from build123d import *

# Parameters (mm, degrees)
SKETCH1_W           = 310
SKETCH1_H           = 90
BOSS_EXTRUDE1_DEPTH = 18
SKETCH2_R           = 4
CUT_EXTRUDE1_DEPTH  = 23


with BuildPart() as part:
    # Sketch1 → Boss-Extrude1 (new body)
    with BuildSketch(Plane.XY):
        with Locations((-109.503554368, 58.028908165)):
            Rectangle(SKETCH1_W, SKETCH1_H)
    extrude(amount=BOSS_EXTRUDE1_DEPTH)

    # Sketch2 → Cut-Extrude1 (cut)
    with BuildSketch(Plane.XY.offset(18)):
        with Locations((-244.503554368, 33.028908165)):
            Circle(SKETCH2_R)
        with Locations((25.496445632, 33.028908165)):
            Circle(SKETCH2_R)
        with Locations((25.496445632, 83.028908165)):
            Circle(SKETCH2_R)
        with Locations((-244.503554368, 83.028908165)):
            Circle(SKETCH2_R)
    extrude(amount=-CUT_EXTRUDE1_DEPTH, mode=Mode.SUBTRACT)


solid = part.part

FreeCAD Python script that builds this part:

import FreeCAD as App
import Part
import Sketcher


def add_polygon(sketch, points):
    """Adds a closed chain of lines whose ends are joined by coincident constraints."""
    first, n = sketch.GeometryCount, len(points)
    for a, b in zip(points, points[1:] + points[:1]):
        sketch.addGeometry(Part.LineSegment(App.Vector(*a, 0), App.Vector(*b, 0)), False)
    for i in range(n):
        sketch.addConstraint(Sketcher.Constraint("Coincident", first + i, 2, first + (i + 1) % n, 1))

doc = App.newDocument("Part")
body = doc.addObject("PartDesign::Body", "Body")

sketch1 = body.newObject("Sketcher::SketchObject", "Sketch")
sketch1.AttachmentSupport = (doc.getObject("XY_Plane"), [""])
sketch1.MapMode = "FlatFace"
add_polygon(sketch1, [(-265, 103), (-265, 13), (45, 13), (45, 103)])
sketch1.addConstraint(Sketcher.Constraint("Vertical", 0))
sketch1.addConstraint(Sketcher.Constraint("Horizontal", 1))
sketch1.addConstraint(Sketcher.Constraint("Vertical", 2))
sketch1.addConstraint(Sketcher.Constraint("Horizontal", 3))
sketch1.addConstraint(Sketcher.Constraint("DistanceX", 1, 1, 1, 2, 310.0))
sketch1.addConstraint(Sketcher.Constraint("DistanceY", 0, 2, 0, 1, 90.0))
sketch1.addConstraint(Sketcher.Constraint("DistanceY", -1, 1, 0, 2, 13.028908))
sketch1.addConstraint(Sketcher.Constraint("DistanceX", 0, 2, -1, 1, 264.503554))
pad1 = body.newObject("PartDesign::Pad", "Pad")
pad1.Profile = sketch1
pad1.Length = 18

sketch2 = body.newObject("Sketcher::SketchObject", "Sketch001")
sketch2.AttachmentSupport = (doc.getObject("XY_Plane"), [""])
sketch2.MapMode = "FlatFace"
sketch2.AttachmentOffset = App.Placement(App.Vector(0, 0, 18), App.Rotation())
sketch2.addGeometry(Part.Circle(App.Vector(-244.5, 33, 0), App.Vector(0, 0, 1), 4), False)
sketch2.addGeometry(Part.Circle(App.Vector(25.5, 33, 0), App.Vector(0, 0, 1), 4), False)
sketch2.addGeometry(Part.Circle(App.Vector(25.5, 83, 0), App.Vector(0, 0, 1), 4), False)
sketch2.addGeometry(Part.Circle(App.Vector(-244.5, 83, 0), App.Vector(0, 0, 1), 4), False)
sketch2.addConstraint(Sketcher.Constraint("Equal", 0, 1))
sketch2.addConstraint(Sketcher.Constraint("Equal", 1, 2))
sketch2.addConstraint(Sketcher.Constraint("Equal", 2, 3))
sketch2.addConstraint(Sketcher.Constraint("Horizontal", 0, 3, 1, 3))
sketch2.addConstraint(Sketcher.Constraint("Horizontal", 2, 3, 3, 3))
sketch2.addConstraint(Sketcher.Constraint("Vertical", 1, 3, 2, 3))
sketch2.addConstraint(Sketcher.Constraint("Vertical", 0, 3, 3, 3))
sketch2.addConstraint(Sketcher.Constraint("Diameter", 0, 8.0))
sketch2.addConstraint(Sketcher.Constraint("DistanceX", 0, 3, 1, 3, 270.0))
sketch2.addConstraint(Sketcher.Constraint("DistanceY", 1, 3, 2, 3, 50.0))
sketch2.addConstraint(Sketcher.Constraint("DistanceY", -1, 1, 0, 3, 33.028908))
sketch2.addConstraint(Sketcher.Constraint("DistanceX", 0, 3, -1, 1, 244.503554))
pocket1 = body.newObject("PartDesign::Pocket", "Pocket")
pocket1.Profile = sketch2
pocket1.Length = 23

doc.recompute()
